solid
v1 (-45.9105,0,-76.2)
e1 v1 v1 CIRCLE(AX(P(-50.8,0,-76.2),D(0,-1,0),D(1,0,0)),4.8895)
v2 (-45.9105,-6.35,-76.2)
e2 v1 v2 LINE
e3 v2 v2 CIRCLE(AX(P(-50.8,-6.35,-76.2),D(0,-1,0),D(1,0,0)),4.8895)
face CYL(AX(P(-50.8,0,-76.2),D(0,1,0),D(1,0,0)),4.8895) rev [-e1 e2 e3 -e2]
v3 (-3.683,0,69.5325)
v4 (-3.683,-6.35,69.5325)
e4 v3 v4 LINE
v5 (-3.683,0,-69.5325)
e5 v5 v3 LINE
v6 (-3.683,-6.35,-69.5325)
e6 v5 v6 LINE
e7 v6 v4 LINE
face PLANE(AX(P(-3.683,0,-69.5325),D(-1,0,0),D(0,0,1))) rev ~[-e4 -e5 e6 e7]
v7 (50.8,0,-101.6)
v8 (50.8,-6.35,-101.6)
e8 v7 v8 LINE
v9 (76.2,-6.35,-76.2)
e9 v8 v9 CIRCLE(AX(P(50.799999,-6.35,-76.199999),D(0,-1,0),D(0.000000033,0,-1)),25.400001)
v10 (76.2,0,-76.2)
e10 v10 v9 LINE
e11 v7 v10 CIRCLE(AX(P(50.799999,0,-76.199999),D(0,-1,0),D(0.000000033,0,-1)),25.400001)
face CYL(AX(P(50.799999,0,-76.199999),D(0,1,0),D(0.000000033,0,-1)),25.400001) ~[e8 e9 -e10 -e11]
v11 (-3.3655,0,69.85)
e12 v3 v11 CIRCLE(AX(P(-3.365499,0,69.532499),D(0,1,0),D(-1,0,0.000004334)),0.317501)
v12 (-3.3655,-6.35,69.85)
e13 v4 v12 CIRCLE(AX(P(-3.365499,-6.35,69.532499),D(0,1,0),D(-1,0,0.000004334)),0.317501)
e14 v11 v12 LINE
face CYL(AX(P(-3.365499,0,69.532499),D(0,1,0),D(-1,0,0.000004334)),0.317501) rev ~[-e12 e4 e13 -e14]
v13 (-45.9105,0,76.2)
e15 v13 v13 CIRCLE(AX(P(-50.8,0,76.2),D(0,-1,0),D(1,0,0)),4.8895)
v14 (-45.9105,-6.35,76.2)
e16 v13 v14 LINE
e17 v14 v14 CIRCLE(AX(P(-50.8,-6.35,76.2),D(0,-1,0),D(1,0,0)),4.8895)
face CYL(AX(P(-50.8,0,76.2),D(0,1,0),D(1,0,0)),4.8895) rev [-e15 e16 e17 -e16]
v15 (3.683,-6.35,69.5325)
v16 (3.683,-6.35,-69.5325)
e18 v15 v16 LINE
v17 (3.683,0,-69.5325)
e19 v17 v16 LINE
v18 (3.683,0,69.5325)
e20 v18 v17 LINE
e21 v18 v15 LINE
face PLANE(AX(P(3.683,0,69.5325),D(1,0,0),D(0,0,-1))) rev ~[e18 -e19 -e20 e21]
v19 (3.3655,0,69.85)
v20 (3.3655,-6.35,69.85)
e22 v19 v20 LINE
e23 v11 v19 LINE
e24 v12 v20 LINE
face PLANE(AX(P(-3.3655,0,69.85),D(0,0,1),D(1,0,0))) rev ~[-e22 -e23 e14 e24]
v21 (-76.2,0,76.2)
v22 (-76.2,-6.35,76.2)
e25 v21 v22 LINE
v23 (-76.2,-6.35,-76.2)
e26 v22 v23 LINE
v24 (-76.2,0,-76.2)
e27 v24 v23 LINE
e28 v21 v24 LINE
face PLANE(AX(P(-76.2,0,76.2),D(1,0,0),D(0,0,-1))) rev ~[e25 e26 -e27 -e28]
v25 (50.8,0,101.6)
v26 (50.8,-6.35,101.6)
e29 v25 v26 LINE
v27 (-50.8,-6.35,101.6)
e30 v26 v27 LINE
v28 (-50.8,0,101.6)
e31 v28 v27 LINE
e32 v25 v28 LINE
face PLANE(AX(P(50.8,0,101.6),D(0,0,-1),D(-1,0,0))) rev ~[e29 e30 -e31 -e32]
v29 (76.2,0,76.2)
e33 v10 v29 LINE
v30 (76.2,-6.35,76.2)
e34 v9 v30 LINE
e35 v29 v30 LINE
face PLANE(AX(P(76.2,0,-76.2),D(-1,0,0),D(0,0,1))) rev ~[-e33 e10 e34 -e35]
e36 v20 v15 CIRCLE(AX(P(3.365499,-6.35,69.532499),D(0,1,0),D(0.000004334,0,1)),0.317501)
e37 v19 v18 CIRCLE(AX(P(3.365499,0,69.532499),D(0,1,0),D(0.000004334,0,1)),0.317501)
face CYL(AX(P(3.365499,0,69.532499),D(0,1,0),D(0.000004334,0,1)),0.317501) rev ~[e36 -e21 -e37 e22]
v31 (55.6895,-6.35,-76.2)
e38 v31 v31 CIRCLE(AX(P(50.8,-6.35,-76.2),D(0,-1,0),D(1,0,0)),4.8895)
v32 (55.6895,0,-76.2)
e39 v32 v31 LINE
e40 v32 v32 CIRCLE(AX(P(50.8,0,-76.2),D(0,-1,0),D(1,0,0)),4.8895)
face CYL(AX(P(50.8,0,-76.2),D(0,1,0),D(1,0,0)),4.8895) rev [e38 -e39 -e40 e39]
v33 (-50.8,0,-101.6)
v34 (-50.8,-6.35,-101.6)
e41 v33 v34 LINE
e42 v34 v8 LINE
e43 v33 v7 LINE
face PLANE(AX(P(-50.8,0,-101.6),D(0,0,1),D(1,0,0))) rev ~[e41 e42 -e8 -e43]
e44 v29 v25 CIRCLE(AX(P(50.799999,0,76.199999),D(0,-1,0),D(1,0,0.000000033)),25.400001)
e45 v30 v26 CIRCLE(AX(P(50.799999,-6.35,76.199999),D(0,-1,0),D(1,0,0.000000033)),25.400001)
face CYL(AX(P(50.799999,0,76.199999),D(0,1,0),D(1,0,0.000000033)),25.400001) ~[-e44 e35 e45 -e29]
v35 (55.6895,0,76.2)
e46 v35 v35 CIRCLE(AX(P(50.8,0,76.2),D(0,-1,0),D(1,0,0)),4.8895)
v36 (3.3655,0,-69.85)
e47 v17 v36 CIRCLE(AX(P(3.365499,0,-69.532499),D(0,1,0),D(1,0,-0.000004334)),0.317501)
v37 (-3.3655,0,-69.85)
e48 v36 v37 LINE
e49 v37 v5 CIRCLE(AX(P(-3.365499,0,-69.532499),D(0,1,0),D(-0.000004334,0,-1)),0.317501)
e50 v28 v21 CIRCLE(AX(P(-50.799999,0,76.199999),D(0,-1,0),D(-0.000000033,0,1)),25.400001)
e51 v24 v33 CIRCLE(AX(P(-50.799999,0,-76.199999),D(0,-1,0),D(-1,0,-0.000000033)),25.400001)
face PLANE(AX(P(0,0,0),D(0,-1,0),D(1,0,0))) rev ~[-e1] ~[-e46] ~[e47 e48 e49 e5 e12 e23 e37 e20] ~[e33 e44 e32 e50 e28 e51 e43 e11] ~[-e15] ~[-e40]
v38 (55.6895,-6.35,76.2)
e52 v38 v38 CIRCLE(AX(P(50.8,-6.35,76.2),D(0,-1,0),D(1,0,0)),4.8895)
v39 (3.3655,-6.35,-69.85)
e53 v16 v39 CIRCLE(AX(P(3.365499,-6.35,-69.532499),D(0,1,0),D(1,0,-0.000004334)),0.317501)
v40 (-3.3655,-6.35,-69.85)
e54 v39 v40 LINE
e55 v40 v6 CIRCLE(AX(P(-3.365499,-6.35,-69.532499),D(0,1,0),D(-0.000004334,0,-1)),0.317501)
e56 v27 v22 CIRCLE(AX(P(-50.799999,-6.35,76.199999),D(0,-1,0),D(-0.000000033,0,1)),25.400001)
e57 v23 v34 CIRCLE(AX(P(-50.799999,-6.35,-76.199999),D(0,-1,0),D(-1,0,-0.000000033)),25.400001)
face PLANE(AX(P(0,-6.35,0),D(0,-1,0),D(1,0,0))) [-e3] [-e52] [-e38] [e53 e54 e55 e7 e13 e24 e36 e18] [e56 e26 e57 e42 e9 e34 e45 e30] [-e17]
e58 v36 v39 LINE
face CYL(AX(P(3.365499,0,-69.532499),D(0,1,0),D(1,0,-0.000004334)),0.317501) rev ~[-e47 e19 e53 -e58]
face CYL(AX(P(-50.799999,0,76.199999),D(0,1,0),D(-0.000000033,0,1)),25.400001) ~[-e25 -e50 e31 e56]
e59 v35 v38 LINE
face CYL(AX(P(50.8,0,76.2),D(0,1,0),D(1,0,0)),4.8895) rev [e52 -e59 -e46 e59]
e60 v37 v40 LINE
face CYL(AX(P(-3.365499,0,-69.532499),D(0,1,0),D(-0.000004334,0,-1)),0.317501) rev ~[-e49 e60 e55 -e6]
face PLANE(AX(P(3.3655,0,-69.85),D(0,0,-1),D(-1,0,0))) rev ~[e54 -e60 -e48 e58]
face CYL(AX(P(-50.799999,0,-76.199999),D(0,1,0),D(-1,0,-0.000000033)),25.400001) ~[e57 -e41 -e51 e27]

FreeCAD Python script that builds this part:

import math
import FreeCAD as App
import Part
import Sketcher
Q = App.Units.Quantity

doc = App.newDocument("Part")
params = doc.addObject("Spreadsheet::Sheet", "Params")
for row, (alias, value) in enumerate([
    ("sketch1_radius", "1 in"),
    ("sketch1_width", "4 in"),
    ("sketch1_height", "6 in"),
    ("sketch1_diameter", "0.385 in"),
    ("sketch1_width2", "0.265 in"),
    ("pad1_length", "0.25 in"),
], start=1):
    params.set(f"A{row}", alias)
    params.set(f"B{row}", "=" + value)
    params.setAlias(f"B{row}", alias)

body = doc.addObject("PartDesign::Body", "Body")

# Sketch on XZ plane
sketch1 = body.newObject("Sketcher::SketchObject", "Sketch")
sketch1.AttachmentSupport = (doc.getObject("XZ_Plane"), [""])
sketch1.MapMode = "FlatFace"
sketch1.addGeometry(Part.ArcOfCircle(Part.Circle(App.Vector(-50.799999, -76.199999, 0), App.Vector(0, 0, 1), 25.400001), math.radians(-179.999998), math.radians(-90.000002)), False)
sketch1.addGeometry(Part.LineSegment(App.Vector(-50.8, -101.6, 0), App.Vector(50.8, -101.6, 0)), False)
sketch1.addGeometry(Part.ArcOfCircle(Part.Circle(App.Vector(50.799999, -76.199999, 0), App.Vector(0, 0, 1), 25.400001), math.radians(-89.999998), math.radians(-0.000002)), False)
sketch1.addGeometry(Part.LineSegment(App.Vector(76.2, -76.2, 0), App.Vector(76.2, 76.2, 0)), False)
sketch1.addGeometry(Part.ArcOfCircle(Part.Circle(App.Vector(50.799999, 76.199999, 0), App.Vector(0, 0, 1), 25.400001), math.radians(0.000002), math.radians(89.999998)), False)
sketch1.addGeometry(Part.LineSegment(App.Vector(50.8, 101.6, 0), App.Vector(-50.8, 101.6, 0)), False)
sketch1.addGeometry(Part.ArcOfCircle(Part.Circle(App.Vector(-50.799999, 76.199999, 0), App.Vector(0, 0, 1), 25.400001), math.radians(90.000002), math.radians(179.999998)), False)
sketch1.addGeometry(Part.LineSegment(App.Vector(-76.2, 76.2, 0), App.Vector(-76.2, -76.2, 0)), False)
sketch1.addGeometry(Part.Circle(App.Vector(-50.8, -76.2, 0), App.Vector(0, 0, 1), 4.8895), False)
sketch1.addGeometry(Part.Circle(App.Vector(50.8, -76.2, 0), App.Vector(0, 0, 1), 4.8895), False)
sketch1.addGeometry(Part.Circle(App.Vector(-50.8, 76.2, 0), App.Vector(0, 0, 1), 4.8895), False)
sketch1.addGeometry(Part.ArcOfCircle(Part.Circle(App.Vector(3.365499, -69.532499, 0), App.Vector(0, 0, 1), 0.317501), math.radians(-89.999752), math.radians(-0.000248)), False)
sketch1.addGeometry(Part.LineSegment(App.Vector(3.3655, -69.85, 0), App.Vector(-3.3655, -69.85, 0)), False)
sketch1.addGeometry(Part.ArcOfCircle(Part.Circle(App.Vector(-3.365499, -69.532499, 0), App.Vector(0, 0, 1), 0.317501), math.radians(-179.999752), math.radians(-90.000248)), False)
sketch1.addGeometry(Part.LineSegment(App.Vector(-3.683, -69.5325, 0), App.Vector(-3.683, 69.5325, 0)), False)
sketch1.addGeometry(Part.ArcOfCircle(Part.Circle(App.Vector(-3.365499, 69.532499, 0), App.Vector(0, 0, 1), 0.317501), math.radians(90.000248), math.radians(179.999752)), False)
sketch1.addGeometry(Part.LineSegment(App.Vector(-3.3655, 69.85, 0), App.Vector(3.3655, 69.85, 0)), False)
sketch1.addGeometry(Part.ArcOfCircle(Part.Circle(App.Vector(3.365499, 69.532499, 0), App.Vector(0, 0, 1), 0.317501), math.radians(0.000248), math.radians(89.999752)), False)
sketch1.addGeometry(Part.LineSegment(App.Vector(3.683, 69.5325, 0), App.Vector(3.683, -69.5325, 0)), False)
sketch1.addGeometry(Part.Circle(App.Vector(50.8, 76.2, 0), App.Vector(0, 0, 1), 4.8895), False)
sketch1.addConstraint(Sketcher.Constraint("Tangent", 0, 2, 1, 1))
sketch1.addConstraint(Sketcher.Constraint("Tangent", 1, 2, 2, 1))
sketch1.addConstraint(Sketcher.Constraint("Tangent", 2, 2, 3, 1))
sketch1.addConstraint(Sketcher.Constraint("Tangent", 3, 2, 4, 1))
sketch1.addConstraint(Sketcher.Constraint("Tangent", 4, 2, 5, 1))
sketch1.addConstraint(Sketcher.Constraint("Tangent", 5, 2, 6, 1))
sketch1.addConstraint(Sketcher.Constraint("Tangent", 6, 2, 7, 1))
sketch1.addConstraint(Sketcher.Constraint("Tangent", 7, 2, 0, 1))
sketch1.addConstraint(Sketcher.Constraint("Coincident", 11, 1, 12, 1))
sketch1.addConstraint(Sketcher.Constraint("Coincident", 12, 2, 13, 2))
sketch1.addConstraint(Sketcher.Constraint("Coincident", 13, 1, 14, 1))
sketch1.addConstraint(Sketcher.Constraint("Coincident", 14, 2, 15, 2))
sketch1.addConstraint(Sketcher.Constraint("Coincident", 15, 1, 16, 1))
sketch1.addConstraint(Sketcher.Constraint("Coincident", 16, 2, 17, 2))
sketch1.addConstraint(Sketcher.Constraint("Coincident", 17, 1, 18, 1))
sketch1.addConstraint(Sketcher.Constraint("Coincident", 18, 2, 11, 2))
sketch1.addConstraint(Sketcher.Constraint("Horizontal", 1))
sketch1.addConstraint(Sketcher.Constraint("Vertical", 3))
sketch1.addConstraint(Sketcher.Constraint("Horizontal", 5))
sketch1.addConstraint(Sketcher.Constraint("Vertical", 7))
sketch1.addConstraint(Sketcher.Constraint("Horizontal", 12))
sketch1.addConstraint(Sketcher.Constraint("Vertical", 14))
sketch1.addConstraint(Sketcher.Constraint("Horizontal", 16))
sketch1.addConstraint(Sketcher.Constraint("Vertical", 18))
sketch1.addConstraint(Sketcher.Constraint("Coincident", 8, 3, 0, 3))
sketch1.addConstraint(Sketcher.Constraint("Coincident", 9, 3, 2, 3))
sketch1.addConstraint(Sketcher.Constraint("Coincident", 10, 3, 6, 3))
sketch1.addConstraint(Sketcher.Constraint("Coincident", 19, 3, 4, 3))
sketch1.addConstraint(Sketcher.Constraint("Equal", 0, 2))
sketch1.addConstraint(Sketcher.Constraint("Equal", 2, 4))
sketch1.addConstraint(Sketcher.Constraint("Equal", 4, 6))
sketch1.addConstraint(Sketcher.Constraint("Equal", 8, 9))
sketch1.addConstraint(Sketcher.Constraint("Equal", 9, 10))
sketch1.addConstraint(Sketcher.Constraint("Equal", 11, 13))
sketch1.addConstraint(Sketcher.Constraint("Equal", 13, 15))
sketch1.addConstraint(Sketcher.Constraint("Equal", 15, 17))
sketch1.addConstraint(Sketcher.Constraint("Equal", 10, 19))
sketch1.addConstraint(Sketcher.Constraint("Symmetric", 0, 3, 4, 3, -1, 1))
sketch1.addConstraint(Sketcher.Constraint("Symmetric", 11, 3, 15, 3, -1, 1))
sketch1.addConstraint(Sketcher.Constraint("Horizontal", 11, 3, 13, 1))
sketch1.addConstraint(Sketcher.Constraint("Horizontal", 17, 3, 14, 2))
sketch1.addConstraint(Sketcher.Constraint("Horizontal", 14, 2, 17, 1))
sketch1.addConstraint(Sketcher.Constraint("Horizontal", 13, 1, 18, 2))
sketch1.addConstraint(Sketcher.Constraint("Vertical", 17, 3, 11, 1))
sketch1.addConstraint(Sketcher.Constraint("Vertical", 15, 3, 12, 2))
sketch1.addConstraint(Sketcher.Constraint("Vertical", 12, 2, 15, 1))
sketch1.addConstraint(Sketcher.Constraint("Vertical", 11, 1, 16, 2))
sketch1.addConstraint(Sketcher.Constraint("Radius", 0, Q("1 in")))
sketch1.addConstraint(Sketcher.Constraint("DistanceX", 1, 1, 1, 2, Q("4 in")))
sketch1.addConstraint(Sketcher.Constraint("DistanceY", 3, 1, 3, 2, Q("6 in")))
sketch1.addConstraint(Sketcher.Constraint("Diameter", 8, Q("0.385 in")))
sketch1.addConstraint(Sketcher.Constraint("Radius", 11, Q("0.0125001 in")))
sketch1.addConstraint(Sketcher.Constraint("DistanceX", 12, 2, 12, 1, Q("0.265 in")))
sketch1.addConstraint(Sketcher.Constraint("DistanceY", 14, 1, 14, 2, Q("5.475 in")))
sketch1.setExpression("Constraints[47]", "Params.sketch1_radius")
sketch1.setExpression("Constraints[48]", "Params.sketch1_width")
sketch1.setExpression("Constraints[49]", "Params.sketch1_height")
sketch1.setExpression("Constraints[50]", "Params.sketch1_diameter")
sketch1.setExpression("Constraints[52]", "Params.sketch1_width2")
pad1 = body.newObject("PartDesign::Pad", "Pad")
pad1.Profile = sketch1
pad1.setExpression("Length", "Params.pad1_length")

doc.recompute()
